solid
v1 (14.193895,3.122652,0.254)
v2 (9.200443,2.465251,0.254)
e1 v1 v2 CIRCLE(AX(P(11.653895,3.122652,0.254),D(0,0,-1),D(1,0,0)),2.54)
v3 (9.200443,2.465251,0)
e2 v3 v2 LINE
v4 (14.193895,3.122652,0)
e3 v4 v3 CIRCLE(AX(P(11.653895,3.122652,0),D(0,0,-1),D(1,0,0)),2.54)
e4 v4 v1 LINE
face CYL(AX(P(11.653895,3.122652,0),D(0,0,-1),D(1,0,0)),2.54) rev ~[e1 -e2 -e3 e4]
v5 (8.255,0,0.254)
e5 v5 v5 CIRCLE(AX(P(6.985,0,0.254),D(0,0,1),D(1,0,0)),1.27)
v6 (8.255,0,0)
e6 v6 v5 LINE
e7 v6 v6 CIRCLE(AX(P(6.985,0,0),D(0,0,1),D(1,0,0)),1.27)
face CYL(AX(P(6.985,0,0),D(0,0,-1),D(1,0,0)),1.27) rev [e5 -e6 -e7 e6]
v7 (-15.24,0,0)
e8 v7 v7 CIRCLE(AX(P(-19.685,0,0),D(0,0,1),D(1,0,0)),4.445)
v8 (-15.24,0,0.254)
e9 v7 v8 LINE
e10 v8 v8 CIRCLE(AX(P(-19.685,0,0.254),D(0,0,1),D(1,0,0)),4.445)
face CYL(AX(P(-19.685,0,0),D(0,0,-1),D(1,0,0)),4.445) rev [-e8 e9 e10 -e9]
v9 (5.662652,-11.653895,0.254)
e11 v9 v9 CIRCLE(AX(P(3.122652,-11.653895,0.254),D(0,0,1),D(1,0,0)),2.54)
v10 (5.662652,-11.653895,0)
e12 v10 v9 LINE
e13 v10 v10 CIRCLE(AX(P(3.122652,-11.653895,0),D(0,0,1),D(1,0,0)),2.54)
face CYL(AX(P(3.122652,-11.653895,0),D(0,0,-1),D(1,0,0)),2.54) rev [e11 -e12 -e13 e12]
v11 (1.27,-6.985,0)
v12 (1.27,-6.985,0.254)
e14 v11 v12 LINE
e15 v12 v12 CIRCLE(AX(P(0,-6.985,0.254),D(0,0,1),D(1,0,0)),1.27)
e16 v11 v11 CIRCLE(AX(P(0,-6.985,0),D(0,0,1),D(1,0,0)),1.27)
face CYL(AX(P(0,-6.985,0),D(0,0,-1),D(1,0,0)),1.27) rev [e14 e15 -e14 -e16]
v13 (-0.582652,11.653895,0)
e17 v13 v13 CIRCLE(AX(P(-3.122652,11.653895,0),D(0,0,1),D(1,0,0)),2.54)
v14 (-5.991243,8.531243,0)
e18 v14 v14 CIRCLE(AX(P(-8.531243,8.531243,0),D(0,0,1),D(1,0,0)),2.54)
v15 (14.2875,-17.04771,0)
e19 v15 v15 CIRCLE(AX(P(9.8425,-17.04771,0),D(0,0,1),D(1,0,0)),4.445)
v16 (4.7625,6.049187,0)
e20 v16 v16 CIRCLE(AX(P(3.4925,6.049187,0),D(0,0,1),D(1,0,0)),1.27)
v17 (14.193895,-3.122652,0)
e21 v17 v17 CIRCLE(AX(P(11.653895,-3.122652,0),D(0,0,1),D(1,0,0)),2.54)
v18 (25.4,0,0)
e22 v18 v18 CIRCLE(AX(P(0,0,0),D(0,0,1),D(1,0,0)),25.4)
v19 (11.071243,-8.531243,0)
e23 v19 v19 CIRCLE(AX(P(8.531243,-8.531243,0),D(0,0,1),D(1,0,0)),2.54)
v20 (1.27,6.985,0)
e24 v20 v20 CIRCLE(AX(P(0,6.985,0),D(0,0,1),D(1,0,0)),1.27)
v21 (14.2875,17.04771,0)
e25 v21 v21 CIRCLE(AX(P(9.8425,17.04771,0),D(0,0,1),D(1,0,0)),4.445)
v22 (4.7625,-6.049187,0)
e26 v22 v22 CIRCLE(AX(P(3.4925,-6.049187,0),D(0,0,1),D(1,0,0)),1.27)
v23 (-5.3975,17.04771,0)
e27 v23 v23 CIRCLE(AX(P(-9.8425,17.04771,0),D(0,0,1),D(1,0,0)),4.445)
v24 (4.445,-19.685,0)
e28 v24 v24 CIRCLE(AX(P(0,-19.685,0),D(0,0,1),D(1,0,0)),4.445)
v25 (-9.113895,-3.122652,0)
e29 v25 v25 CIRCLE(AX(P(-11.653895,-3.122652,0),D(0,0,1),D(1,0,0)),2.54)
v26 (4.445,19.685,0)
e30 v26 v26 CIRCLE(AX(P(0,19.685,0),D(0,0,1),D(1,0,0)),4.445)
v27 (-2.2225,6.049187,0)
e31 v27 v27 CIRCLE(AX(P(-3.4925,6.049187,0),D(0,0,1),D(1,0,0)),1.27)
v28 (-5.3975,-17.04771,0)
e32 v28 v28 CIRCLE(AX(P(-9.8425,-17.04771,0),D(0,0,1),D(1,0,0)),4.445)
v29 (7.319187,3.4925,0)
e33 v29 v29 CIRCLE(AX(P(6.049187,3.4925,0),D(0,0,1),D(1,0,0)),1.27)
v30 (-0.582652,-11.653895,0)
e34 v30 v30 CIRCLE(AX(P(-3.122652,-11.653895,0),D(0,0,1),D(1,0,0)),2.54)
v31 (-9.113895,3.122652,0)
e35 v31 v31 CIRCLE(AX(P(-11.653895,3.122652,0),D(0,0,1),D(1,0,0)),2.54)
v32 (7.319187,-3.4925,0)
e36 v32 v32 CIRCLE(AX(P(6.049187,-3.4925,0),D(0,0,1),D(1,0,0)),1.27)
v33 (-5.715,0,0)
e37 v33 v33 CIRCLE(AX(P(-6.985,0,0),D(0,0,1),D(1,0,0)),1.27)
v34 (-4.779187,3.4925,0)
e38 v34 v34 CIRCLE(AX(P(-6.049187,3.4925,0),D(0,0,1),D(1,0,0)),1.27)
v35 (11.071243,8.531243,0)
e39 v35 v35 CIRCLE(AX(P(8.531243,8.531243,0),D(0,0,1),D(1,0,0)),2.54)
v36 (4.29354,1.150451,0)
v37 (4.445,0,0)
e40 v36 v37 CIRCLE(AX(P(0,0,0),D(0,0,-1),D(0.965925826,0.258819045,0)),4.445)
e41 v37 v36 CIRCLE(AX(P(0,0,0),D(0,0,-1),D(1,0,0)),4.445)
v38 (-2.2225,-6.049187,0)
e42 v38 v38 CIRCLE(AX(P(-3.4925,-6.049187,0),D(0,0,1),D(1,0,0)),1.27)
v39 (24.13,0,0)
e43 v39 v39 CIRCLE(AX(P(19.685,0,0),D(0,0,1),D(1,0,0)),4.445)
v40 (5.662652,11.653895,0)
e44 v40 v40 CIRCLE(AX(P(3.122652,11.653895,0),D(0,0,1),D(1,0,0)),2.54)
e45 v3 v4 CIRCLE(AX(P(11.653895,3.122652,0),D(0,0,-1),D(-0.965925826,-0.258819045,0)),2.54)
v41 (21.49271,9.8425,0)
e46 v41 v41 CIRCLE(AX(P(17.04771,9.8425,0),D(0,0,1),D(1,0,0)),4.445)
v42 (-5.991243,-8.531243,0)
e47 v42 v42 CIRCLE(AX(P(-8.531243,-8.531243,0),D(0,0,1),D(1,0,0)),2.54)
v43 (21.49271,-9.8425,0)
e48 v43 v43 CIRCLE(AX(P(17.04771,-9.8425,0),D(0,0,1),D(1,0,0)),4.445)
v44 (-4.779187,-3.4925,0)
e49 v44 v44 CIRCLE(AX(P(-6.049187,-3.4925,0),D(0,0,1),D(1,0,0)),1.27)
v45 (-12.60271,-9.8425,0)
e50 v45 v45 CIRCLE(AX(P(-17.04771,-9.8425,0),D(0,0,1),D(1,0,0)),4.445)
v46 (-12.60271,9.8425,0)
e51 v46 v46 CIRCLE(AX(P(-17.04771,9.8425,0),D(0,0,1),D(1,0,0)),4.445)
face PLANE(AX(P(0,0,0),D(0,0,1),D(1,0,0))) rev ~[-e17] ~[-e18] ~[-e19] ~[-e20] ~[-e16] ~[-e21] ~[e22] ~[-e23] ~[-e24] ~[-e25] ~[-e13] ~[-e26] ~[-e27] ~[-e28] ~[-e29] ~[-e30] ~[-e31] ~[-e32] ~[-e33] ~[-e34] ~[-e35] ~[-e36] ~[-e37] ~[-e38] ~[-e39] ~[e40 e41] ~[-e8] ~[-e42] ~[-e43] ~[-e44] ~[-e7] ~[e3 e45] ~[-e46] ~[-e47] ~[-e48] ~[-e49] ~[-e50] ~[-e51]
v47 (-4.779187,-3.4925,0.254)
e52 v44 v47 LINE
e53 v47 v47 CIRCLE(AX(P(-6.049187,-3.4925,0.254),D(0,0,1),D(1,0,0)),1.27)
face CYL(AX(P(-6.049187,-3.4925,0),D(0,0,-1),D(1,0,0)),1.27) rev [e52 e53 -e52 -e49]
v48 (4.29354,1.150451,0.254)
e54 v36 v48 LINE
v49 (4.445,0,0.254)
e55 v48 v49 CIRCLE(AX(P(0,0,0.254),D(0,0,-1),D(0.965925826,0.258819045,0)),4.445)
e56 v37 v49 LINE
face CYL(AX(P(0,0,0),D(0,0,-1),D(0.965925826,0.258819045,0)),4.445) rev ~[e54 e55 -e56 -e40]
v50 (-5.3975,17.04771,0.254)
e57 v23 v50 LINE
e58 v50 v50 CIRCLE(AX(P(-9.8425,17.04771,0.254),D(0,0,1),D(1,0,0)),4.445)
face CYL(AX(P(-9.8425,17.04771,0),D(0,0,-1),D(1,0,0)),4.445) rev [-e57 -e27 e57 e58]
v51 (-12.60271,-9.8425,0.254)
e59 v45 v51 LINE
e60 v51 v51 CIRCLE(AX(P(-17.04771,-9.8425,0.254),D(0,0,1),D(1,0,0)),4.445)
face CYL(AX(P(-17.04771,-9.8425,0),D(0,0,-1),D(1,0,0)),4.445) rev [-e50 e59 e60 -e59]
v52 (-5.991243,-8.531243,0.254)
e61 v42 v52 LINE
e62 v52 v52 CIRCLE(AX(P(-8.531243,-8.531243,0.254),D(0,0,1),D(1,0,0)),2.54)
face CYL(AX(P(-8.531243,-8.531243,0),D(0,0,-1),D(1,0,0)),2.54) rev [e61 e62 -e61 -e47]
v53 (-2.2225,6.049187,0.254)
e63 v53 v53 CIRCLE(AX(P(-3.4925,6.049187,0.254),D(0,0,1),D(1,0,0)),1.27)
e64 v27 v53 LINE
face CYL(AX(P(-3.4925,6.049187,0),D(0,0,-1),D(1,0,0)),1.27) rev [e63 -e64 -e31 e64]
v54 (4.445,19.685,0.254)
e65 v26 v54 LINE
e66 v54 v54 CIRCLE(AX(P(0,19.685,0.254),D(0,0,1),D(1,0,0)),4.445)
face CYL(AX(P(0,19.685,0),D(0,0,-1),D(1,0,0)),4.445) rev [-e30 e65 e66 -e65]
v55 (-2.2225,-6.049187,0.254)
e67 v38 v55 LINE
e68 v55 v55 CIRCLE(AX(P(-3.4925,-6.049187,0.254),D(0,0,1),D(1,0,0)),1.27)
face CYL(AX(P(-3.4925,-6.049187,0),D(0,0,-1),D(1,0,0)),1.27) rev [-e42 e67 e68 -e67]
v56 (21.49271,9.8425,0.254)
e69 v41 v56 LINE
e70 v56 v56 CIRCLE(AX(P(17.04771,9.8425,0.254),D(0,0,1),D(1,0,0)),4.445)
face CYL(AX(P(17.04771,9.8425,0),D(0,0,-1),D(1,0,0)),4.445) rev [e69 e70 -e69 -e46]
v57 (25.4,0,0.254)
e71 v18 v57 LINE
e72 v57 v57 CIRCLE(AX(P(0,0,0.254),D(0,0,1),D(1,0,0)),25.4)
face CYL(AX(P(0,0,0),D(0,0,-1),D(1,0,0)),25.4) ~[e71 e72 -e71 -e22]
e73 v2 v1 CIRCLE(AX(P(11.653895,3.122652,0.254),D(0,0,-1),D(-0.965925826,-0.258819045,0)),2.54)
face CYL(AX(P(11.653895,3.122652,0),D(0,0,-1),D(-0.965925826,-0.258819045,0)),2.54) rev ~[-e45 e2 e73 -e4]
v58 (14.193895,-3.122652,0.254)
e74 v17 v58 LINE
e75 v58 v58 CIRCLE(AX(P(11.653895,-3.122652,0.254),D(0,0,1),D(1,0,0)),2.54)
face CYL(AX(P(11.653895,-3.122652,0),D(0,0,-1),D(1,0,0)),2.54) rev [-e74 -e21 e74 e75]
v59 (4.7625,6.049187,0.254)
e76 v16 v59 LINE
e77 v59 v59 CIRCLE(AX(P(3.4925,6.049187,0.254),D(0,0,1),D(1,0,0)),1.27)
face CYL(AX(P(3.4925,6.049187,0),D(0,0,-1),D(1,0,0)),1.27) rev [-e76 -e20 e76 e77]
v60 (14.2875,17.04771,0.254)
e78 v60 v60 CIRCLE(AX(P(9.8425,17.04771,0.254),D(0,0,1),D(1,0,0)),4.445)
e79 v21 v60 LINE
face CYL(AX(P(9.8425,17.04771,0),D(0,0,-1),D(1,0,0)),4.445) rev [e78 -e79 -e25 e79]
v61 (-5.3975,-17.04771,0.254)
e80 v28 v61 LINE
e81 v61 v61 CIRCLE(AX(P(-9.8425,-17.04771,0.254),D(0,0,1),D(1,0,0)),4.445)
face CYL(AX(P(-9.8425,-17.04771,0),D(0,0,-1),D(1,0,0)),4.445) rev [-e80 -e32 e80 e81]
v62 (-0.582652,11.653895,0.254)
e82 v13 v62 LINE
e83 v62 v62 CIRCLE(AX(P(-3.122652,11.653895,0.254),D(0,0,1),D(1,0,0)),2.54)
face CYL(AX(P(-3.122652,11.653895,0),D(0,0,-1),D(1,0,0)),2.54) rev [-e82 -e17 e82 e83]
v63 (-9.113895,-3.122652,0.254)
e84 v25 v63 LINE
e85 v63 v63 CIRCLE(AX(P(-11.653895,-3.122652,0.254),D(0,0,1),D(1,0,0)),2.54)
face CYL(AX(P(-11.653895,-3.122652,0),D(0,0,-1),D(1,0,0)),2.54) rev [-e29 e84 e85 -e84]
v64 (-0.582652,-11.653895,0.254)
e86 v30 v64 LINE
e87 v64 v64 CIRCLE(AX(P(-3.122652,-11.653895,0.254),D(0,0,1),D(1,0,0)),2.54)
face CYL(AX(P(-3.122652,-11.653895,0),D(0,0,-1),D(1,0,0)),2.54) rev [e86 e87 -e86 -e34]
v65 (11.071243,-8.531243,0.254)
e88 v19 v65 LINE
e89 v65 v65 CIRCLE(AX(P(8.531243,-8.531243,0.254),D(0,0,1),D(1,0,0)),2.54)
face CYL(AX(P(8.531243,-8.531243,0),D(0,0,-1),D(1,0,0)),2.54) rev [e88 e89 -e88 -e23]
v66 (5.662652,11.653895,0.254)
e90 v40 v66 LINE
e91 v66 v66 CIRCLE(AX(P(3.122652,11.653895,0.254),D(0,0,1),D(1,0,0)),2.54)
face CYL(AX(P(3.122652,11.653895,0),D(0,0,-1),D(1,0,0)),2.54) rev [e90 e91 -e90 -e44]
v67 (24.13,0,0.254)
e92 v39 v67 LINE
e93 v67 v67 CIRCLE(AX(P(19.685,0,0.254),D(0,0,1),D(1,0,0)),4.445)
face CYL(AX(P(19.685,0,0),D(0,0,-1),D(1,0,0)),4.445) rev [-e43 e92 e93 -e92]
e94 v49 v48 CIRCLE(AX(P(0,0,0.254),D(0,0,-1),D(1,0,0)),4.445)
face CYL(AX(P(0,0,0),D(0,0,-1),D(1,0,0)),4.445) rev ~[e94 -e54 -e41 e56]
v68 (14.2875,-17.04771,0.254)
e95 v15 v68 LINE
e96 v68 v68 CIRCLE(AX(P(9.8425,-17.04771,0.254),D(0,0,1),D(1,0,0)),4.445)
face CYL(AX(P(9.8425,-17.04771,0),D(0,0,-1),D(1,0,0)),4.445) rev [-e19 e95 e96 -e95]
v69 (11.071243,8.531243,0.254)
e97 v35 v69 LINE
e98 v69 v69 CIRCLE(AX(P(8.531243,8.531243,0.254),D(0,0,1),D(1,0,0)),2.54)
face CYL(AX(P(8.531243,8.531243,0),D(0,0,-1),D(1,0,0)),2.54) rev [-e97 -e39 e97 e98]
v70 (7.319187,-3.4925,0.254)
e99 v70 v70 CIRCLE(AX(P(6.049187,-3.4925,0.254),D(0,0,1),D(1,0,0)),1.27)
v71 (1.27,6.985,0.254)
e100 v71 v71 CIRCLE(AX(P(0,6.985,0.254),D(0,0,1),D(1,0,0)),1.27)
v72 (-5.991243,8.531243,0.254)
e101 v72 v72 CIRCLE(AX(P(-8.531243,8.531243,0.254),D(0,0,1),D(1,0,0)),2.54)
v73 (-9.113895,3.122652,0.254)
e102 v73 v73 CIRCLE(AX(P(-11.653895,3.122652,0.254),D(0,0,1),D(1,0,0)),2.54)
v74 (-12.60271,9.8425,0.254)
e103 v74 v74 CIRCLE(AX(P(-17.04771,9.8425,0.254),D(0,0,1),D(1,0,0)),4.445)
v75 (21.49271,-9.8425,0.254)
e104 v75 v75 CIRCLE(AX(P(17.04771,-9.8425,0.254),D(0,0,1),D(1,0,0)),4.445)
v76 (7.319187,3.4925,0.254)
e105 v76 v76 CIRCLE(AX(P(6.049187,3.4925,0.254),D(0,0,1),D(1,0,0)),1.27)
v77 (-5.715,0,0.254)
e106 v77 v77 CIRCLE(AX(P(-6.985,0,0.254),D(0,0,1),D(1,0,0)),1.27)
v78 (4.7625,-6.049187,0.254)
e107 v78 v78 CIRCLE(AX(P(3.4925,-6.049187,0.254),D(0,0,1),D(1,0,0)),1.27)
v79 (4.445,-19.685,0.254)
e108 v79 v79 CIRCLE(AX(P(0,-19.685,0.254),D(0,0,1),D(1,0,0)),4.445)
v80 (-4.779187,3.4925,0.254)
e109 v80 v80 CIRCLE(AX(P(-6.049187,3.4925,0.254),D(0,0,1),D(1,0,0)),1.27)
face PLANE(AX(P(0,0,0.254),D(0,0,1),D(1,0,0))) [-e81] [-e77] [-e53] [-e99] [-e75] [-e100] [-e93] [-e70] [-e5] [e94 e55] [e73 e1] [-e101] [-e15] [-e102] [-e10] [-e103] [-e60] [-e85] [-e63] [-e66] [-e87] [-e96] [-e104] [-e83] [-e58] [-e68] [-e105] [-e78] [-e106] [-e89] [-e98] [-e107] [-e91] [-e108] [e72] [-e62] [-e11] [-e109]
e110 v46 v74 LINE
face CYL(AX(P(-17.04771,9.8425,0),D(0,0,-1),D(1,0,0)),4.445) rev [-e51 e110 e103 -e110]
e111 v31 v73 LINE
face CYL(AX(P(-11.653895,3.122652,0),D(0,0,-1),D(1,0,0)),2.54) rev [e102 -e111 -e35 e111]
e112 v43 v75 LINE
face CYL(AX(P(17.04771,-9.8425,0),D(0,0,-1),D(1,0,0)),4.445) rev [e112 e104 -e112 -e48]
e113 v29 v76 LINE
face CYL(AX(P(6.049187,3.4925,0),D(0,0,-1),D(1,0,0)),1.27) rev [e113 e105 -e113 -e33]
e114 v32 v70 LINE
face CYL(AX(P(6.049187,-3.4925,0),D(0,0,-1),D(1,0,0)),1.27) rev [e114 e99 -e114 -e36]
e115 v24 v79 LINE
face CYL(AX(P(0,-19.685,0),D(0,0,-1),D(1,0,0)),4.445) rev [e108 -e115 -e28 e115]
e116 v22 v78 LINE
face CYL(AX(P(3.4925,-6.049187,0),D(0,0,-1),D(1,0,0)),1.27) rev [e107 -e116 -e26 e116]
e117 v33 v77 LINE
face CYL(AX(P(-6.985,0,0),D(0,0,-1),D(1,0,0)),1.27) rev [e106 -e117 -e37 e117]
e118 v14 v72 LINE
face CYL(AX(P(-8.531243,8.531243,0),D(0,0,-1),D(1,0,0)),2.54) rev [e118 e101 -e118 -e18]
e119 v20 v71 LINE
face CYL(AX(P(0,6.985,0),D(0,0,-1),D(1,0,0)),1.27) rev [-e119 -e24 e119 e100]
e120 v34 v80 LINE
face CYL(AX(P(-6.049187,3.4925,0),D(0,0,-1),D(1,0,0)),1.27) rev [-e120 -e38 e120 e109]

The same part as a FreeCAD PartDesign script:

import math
import FreeCAD as App
import Part
import Sketcher
Q = App.Units.Quantity

doc = App.newDocument("Part")
body = doc.addObject("PartDesign::Body", "Body")

sketch1 = doc.addObject("Sketcher::SketchObject", "Sketch")
body.addObject(sketch1)
sketch1.AttachmentSupport = (doc.XY_Plane, [""])
sketch1.MapMode = "FlatFace"
sketch1.addGeometry([
    Part.Circle(App.Vector(0, 0, 0), App.Vector(0, 0, 1), 25.4),
    Part.Circle(App.Vector(-9.8, -17, 0), App.Vector(0, 0, 1), 4.4),
    Part.Circle(App.Vector(-17, -9.8, 0), App.Vector(0, 0, 1), 4.4),
    Part.Circle(App.Vector(-8.5, -8.5, 0), App.Vector(0, 0, 1), 2.5),
    Part.Circle(App.Vector(-3.1, -11.7, 0), App.Vector(0, 0, 1), 2.5),
    Part.Circle(App.Vector(-3.5, -6, 0), App.Vector(0, 0, 1), 1.3),
    Part.Circle(App.Vector(-11.7, -3.1, 0), App.Vector(0, 0, 1), 2.5),
    Part.Circle(App.Vector(-6, -3.5, 0), App.Vector(0, 0, 1), 1.3),
    Part.Circle(App.Vector(0, -19.7, 0), App.Vector(0, 0, 1), 4.4),
    Part.Circle(App.Vector(9.8, -17, 0), App.Vector(0, 0, 1), 4.4),
    Part.Circle(App.Vector(3.1, -11.7, 0), App.Vector(0, 0, 1), 2.5),
    Part.Circle(App.Vector(0, -7, 0), App.Vector(0, 0, 1), 1.3),
    Part.Circle(App.Vector(3.5, -6, 0), App.Vector(0, 0, 1), 1.3),
    Part.Circle(App.Vector(8.5, -8.5, 0), App.Vector(0, 0, 1), 2.5),
    Part.Circle(App.Vector(6, -3.5, 0), App.Vector(0, 0, 1), 1.3),
    Part.Circle(App.Vector(11.7, -3.1, 0), App.Vector(0, 0, 1), 2.5),
    Part.Circle(App.Vector(17, -9.8, 0), App.Vector(0, 0, 1), 4.4),
    Part.Circle(App.Vector(-19.7, 0, 0), App.Vector(0, 0, 1), 4.4),
    Part.Circle(App.Vector(-17, 9.8, 0), App.Vector(0, 0, 1), 4.4),
    Part.Circle(App.Vector(-7, 0, 0), App.Vector(0, 0, 1), 1.3),
    Part.Circle(App.Vector(-11.7, 3.1, 0), App.Vector(0, 0, 1), 2.5),
    Part.Circle(App.Vector(-6, 3.5, 0), App.Vector(0, 0, 1), 1.3),
    Part.ArcOfCircle(Part.Circle(App.Vector(0, 0, 0), App.Vector(0, 0, 1), 4.4), math.radians(0), math.radians(15)),
    Part.ArcOfCircle(Part.Circle(App.Vector(0, 0, 0), App.Vector(0, 0, 1), 4.4), math.radians(15), math.radians(360)),
    Part.Circle(App.Vector(-8.5, 8.5, 0), App.Vector(0, 0, 1), 2.5),
    Part.Circle(App.Vector(-3.5, 6, 0), App.Vector(0, 0, 1), 1.3),
    Part.Circle(App.Vector(-3.1, 11.7, 0), App.Vector(0, 0, 1), 2.5),
    Part.Circle(App.Vector(-9.8, 17, 0), App.Vector(0, 0, 1), 4.4),
    Part.Circle(App.Vector(7, 0, 0), App.Vector(0, 0, 1), 1.3),
    Part.Circle(App.Vector(6, 3.5, 0), App.Vector(0, 0, 1), 1.3),
    Part.ArcOfCircle(Part.Circle(App.Vector(11.7, 3.1, 0), App.Vector(0, 0, 1), 2.5), math.radians(-165), math.radians(0)),
    Part.ArcOfCircle(Part.Circle(App.Vector(11.7, 3.1, 0), App.Vector(0, 0, 1), 2.5), math.radians(0), math.radians(195)),
    Part.Circle(App.Vector(0, 7, 0), App.Vector(0, 0, 1), 1.3),
    Part.Circle(App.Vector(3.5, 6, 0), App.Vector(0, 0, 1), 1.3),
    Part.Circle(App.Vector(3.1, 11.7, 0), App.Vector(0, 0, 1), 2.5),
    Part.Circle(App.Vector(8.5, 8.5, 0), App.Vector(0, 0, 1), 2.5),
    Part.Circle(App.Vector(19.7, 0, 0), App.Vector(0, 0, 1), 4.4),
    Part.Circle(App.Vector(17, 9.8, 0), App.Vector(0, 0, 1), 4.4),
    Part.Circle(App.Vector(9.8, 17, 0), App.Vector(0, 0, 1), 4.4),
    Part.Circle(App.Vector(0, 19.7, 0), App.Vector(0, 0, 1), 4.4),
], False)
sketch1.addConstraint([
    Sketcher.Constraint("Tangent", 22, 1, 23, 2),
    Sketcher.Constraint("Coincident", 23, 1, 22, 2),
    Sketcher.Constraint("Tangent", 30, 1, 31, 2),
    Sketcher.Constraint("Coincident", 31, 1, 30, 2),
    Sketcher.Constraint("Coincident", 0, 3, -1, 1),
    Sketcher.Constraint("Coincident", 22, 3, -1, 1),
    Sketcher.Constraint("Equal", 1, 2),
    Sketcher.Constraint("Equal", 3, 4),
    Sketcher.Constraint("Equal", 4, 6),
    Sketcher.Constraint("Equal", 5, 7),
    Sketcher.Constraint("Equal", 2, 8),
    Sketcher.Constraint("Equal", 8, 9),
    Sketcher.Constraint("Equal", 6, 10),
    Sketcher.Constraint("Equal", 7, 11),
    Sketcher.Constraint("Equal", 11, 12),
    Sketcher.Constraint("Equal", 10, 13),
    Sketcher.Constraint("Equal", 12, 14),
    Sketcher.Constraint("Equal", 13, 15),
    Sketcher.Constraint("Equal", 9, 16),
    Sketcher.Constraint("Equal", 16, 17),
    Sketcher.Constraint("Equal", 17, 18),
    Sketcher.Constraint("Equal", 14, 19),
    Sketcher.Constraint("Equal", 15, 20),
    Sketcher.Constraint("Equal", 19, 21),
    Sketcher.Constraint("Equal", 18, 22),
    Sketcher.Constraint("Equal", 20, 24),
    Sketcher.Constraint("Equal", 21, 25),
    Sketcher.Constraint("Equal", 24, 26),
    Sketcher.Constraint("Equal", 23, 27),
    Sketcher.Constraint("Equal", 25, 28),
    Sketcher.Constraint("Equal", 28, 29),
    Sketcher.Constraint("Equal", 26, 30),
    Sketcher.Constraint("Equal", 29, 32),
    Sketcher.Constraint("Equal", 32, 33),
    Sketcher.Constraint("Equal", 31, 34),
    Sketcher.Constraint("Equal", 34, 35),
    Sketcher.Constraint("Equal", 27, 36),
    Sketcher.Constraint("Equal", 36, 37),
    Sketcher.Constraint("Equal", 37, 38),
    Sketcher.Constraint("Equal", 38, 39),
    Sketcher.Constraint("Symmetric", 16, 3, 18, 3, -1, 1),
    Sketcher.Constraint("Symmetric", 15, 3, 20, 3, -1, 1),
    Sketcher.Constraint("Symmetric", 14, 3, 21, 3, -1, 1),
    Sketcher.Constraint("Symmetric", 13, 3, 24, 3, -1, 1),
    Sketcher.Constraint("Symmetric", 12, 3, 25, 3, -1, 1),
    Sketcher.Constraint("Symmetric", 10, 3, 26, 3, -1, 1),
    Sketcher.Constraint("Symmetric", 9, 3, 27, 3, -1, 1),
    Sketcher.Constraint("Symmetric", 19, 3, 28, 3, -1, 1),
    Sketcher.Constraint("Symmetric", 7, 3, 29, 3, -1, 1),
    Sketcher.Constraint("Symmetric", 6, 3, 30, 3, -1, 1),
    Sketcher.Constraint("Symmetric", 11, 3, 32, 3, -1, 1),
    Sketcher.Constraint("Symmetric", 5, 3, 33, 3, -1, 1),
    Sketcher.Constraint("Symmetric", 4, 3, 34, 3, -1, 1),
    Sketcher.Constraint("Symmetric", 3, 3, 35, 3, -1, 1),
    Sketcher.Constraint("Symmetric", 17, 3, 36, 3, -1, 1),
    Sketcher.Constraint("Symmetric", 2, 3, 37, 3, -1, 1),
    Sketcher.Constraint("Symmetric", 1, 3, 38, 3, -1, 1),
    Sketcher.Constraint("Symmetric", 8, 3, 39, 3, -1, 1),
    Sketcher.Constraint("Symmetric", 1, 3, 9, 3, -2),
    Sketcher.Constraint("Symmetric", 4, 3, 10, 3, -2),
    Sketcher.Constraint("Symmetric", 5, 3, 12, 3, -2),
    Sketcher.Constraint("Symmetric", 3, 3, 13, 3, -2),
    Sketcher.Constraint("Symmetric", 7, 3, 14, 3, -2),
    Sketcher.Constraint("Symmetric", 6, 3, 15, 3, -2),
    Sketcher.Constraint("Symmetric", 2, 3, 16, 3, -2),
    Sketcher.Constraint("PointOnObject", 8, 3, -2),
    Sketcher.Constraint("PointOnObject", 11, 3, -2),
    Sketcher.Constraint("PointOnObject", 17, 3, -1),
    Sketcher.Constraint("PointOnObject", 19, 3, -1),
    Sketcher.Constraint("PointOnObject", 22, 1, -1),
    Sketcher.Constraint("Horizontal", 30, 3, 31, 1),
    Sketcher.Constraint("Diameter", 0, Q("2 in")),
    Sketcher.Constraint("Diameter", 3, Q("0.2 in")),
    Sketcher.Constraint("Diameter", 5, Q("0.1 in")),
    Sketcher.Constraint("Diameter", 1, Q("0.35 in")),
    Sketcher.Constraint("DistanceX", 28, 3, 36, 3, Q("0.5 in")),
    Sketcher.Constraint("DistanceY", 32, 3, 39, 3, Q("0.5 in")),
    Sketcher.Constraint("DistanceX", 22, 1, 28, 3, Q("0.1 in")),
    Sketcher.Constraint("DistanceX", 1, 3, 5, 3, Q("0.25 in")),
    Sketcher.Constraint("DistanceY", 16, 3, 14, 3, Q("0.25 in")),
    Sketcher.Constraint("DistanceY", 8, 3, -1, 1, Q("0.775 in")),
    Sketcher.Constraint("DistanceX", 5, 3, 9, 3, Q("0.525 in")),
    Sketcher.Constraint("DistanceY", 7, 3, 18, 3, Q("0.525 in")),
    Sketcher.Constraint("DistanceY", 30, 1, 30, 3, 0.6574),
    Sketcher.Constraint("DistanceY", 23, 1, 30, 1, 1.314801),
    Sketcher.Constraint("DistanceY", 1, 3, -1, 1, 17.04771),
    Sketcher.Constraint("DistanceX", 2, 3, -1, 1, 17.04771),
    Sketcher.Constraint("DistanceX", 4, 3, -1, 1, 3.122652),
    Sketcher.Constraint("DistanceY", 6, 3, -1, 1, 3.122652),
    Sketcher.Constraint("DistanceX", 3, 3, 4, 3, 5.408592),
    Sketcher.Constraint("DistanceY", 4, 3, 3, 3, 3.122652),
    Sketcher.Constraint("DistanceX", 6, 3, 3, 3, 3.122652),
    Sketcher.Constraint("DistanceY", 3, 3, 6, 3, 5.408592),
    Sketcher.Constraint("DistanceY", 5, 3, -1, 1, 6.049187),
    Sketcher.Constraint("DistanceX", 7, 3, -1, 1, 6.049187),
])
pad1 = doc.addObject("PartDesign::Pad", "Pad")
body.addObject(pad1)
pad1.Profile = sketch1
pad1.Length = Q("0.01 in")

doc.recompute()
